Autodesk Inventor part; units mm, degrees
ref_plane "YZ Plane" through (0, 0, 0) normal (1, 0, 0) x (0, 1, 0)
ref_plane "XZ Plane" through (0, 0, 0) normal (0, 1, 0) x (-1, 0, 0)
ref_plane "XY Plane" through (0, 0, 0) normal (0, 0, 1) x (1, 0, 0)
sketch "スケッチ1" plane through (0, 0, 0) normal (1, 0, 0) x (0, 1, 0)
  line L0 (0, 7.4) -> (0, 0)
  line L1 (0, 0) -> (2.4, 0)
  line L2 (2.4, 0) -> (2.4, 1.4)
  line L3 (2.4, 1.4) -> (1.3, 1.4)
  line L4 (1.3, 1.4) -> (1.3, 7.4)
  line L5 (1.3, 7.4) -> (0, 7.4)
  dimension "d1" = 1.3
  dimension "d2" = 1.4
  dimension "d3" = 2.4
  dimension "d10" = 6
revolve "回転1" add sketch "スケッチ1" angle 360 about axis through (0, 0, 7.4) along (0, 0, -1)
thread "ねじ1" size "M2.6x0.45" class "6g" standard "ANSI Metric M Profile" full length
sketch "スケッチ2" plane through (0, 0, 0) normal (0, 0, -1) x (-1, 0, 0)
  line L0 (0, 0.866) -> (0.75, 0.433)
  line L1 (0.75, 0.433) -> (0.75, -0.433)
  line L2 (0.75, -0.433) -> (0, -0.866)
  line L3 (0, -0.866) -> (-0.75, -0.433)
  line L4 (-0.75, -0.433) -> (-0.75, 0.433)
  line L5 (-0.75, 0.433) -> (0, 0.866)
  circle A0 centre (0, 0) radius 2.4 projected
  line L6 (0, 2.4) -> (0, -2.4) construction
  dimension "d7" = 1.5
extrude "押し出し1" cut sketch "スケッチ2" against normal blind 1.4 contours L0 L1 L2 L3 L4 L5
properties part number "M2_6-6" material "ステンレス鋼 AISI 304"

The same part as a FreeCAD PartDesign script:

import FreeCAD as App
import Part
import Sketcher

V = App.Vector
Q = App.Units.Quantity


def add_polygon(sketch, points):
    """Adds a closed chain of lines whose ends are joined by coincident constraints."""
    first, n = sketch.GeometryCount, len(points)
    for a, b in zip(points, points[1:] + points[:1]):
        sketch.addGeometry(Part.LineSegment(App.Vector(*a, 0), App.Vector(*b, 0)), False)
    for i in range(n):
        sketch.addConstraint(Sketcher.Constraint("Coincident", first + i, 2, first + (i + 1) % n, 1))

doc = App.newDocument("Part")
params = doc.addObject("Spreadsheet::Sheet", "Params")
for row, (alias, value) in enumerate([
    ("sketch1_height", "6 mm"),
    ("sketch1_width", "1.3 mm"),
    ("sketch1_width2", "2.4 mm"),
    ("sketch1_height2", "1.4 mm"),
    ("revolution_angle", "360 deg"),
    ("pocket1_length", "1.4 mm"),
], start=1):
    params.set(f"A{row}", alias)
    params.set(f"B{row}", "=" + value)
    params.setAlias(f"B{row}", alias)

body = doc.addObject("PartDesign::Body", "Body")

# Sketch on YZ plane
sketch1 = body.newObject("Sketcher::SketchObject", "Sketch")
sketch1.AttachmentSupport = (doc.getObject("YZ_Plane"), [""])
sketch1.MapMode = "FlatFace"
add_polygon(sketch1, [(1.3, 7.4), (0, 7.4), (0, 0), (2.4, 0), (2.4, 1.4), (1.3, 1.4)])  # lines 0-5
sketch1.addConstraint(Sketcher.Constraint("Horizontal", 0))
sketch1.addConstraint(Sketcher.Constraint("Vertical", 1))
sketch1.addConstraint(Sketcher.Constraint("Horizontal", 2))
sketch1.addConstraint(Sketcher.Constraint("Vertical", 3))
sketch1.addConstraint(Sketcher.Constraint("Horizontal", 4))
sketch1.addConstraint(Sketcher.Constraint("Vertical", 5))
sketch1.addConstraint(Sketcher.Constraint("Coincident", 1, 2, -1, 1))
sketch1.addConstraint(Sketcher.Constraint("DistanceY", 5, 1, 5, 2, 6.0))
sketch1.addConstraint(Sketcher.Constraint("DistanceX", 0, 2, 0, 1, 1.3))
sketch1.addConstraint(Sketcher.Constraint("DistanceX", 2, 1, 2, 2, 2.4))
sketch1.addConstraint(Sketcher.Constraint("DistanceY", 3, 1, 3, 2, 1.4))
sketch1.setExpression("Constraints[13]", "Params.sketch1_height")
sketch1.setExpression("Constraints[14]", "Params.sketch1_width")
sketch1.setExpression("Constraints[15]", "Params.sketch1_width2")
sketch1.setExpression("Constraints[16]", "Params.sketch1_height2")
revolution = body.newObject("PartDesign::Revolution", "Revolution")
revolution.Profile = sketch1
revolution.ReferenceAxis = (sketch1, ["V_Axis"])
revolution.setExpression("Angle", "Params.revolution_angle")

# Sketch on XY plane
sketch2 = body.newObject("Sketcher::SketchObject", "Sketch001")
sketch2.AttachmentSupport = (doc.getObject("XY_Plane"), [""])
sketch2.MapMode = "FlatFace"
add_polygon(sketch2, [(-0.75, 0.433), (0, 0.866), (0.75, 0.433), (0.75, -0.433), (0, -0.866), (-0.75, -0.433)])  # lines 0-5
sketch2.addConstraint(Sketcher.Constraint("Vertical", 2))
sketch2.addConstraint(Sketcher.Constraint("Vertical", 5))
sketch2.addConstraint(Sketcher.Constraint("Symmetric", 0, 2, 3, 2, -1, 1))
sketch2.addConstraint(Sketcher.Constraint("Symmetric", 1, 2, 4, 2, -1, 1))
sketch2.addConstraint(Sketcher.Constraint("PointOnObject", 0, 2, -2))
sketch2.addConstraint(Sketcher.Constraint("Parallel", 0, 3))
sketch2.addConstraint(Sketcher.Constraint("Horizontal", 2, 2, 4, 2))
sketch2.addConstraint(Sketcher.Constraint("DistanceX", 4, 2, 2, 2, 1.5))
sketch2.addConstraint(Sketcher.Constraint("Angle", 0, Q("29.9993 deg")))
sketch2.addConstraint(Sketcher.Constraint("DistanceY", 2, 2, 2, 1, 0.866))
pocket1 = body.newObject("PartDesign::Pocket", "Pocket")
pocket1.Profile = sketch2
pocket1.setExpression("Length", "Params.pocket1_length")
pocket1.Reversed = True

doc.recompute()
